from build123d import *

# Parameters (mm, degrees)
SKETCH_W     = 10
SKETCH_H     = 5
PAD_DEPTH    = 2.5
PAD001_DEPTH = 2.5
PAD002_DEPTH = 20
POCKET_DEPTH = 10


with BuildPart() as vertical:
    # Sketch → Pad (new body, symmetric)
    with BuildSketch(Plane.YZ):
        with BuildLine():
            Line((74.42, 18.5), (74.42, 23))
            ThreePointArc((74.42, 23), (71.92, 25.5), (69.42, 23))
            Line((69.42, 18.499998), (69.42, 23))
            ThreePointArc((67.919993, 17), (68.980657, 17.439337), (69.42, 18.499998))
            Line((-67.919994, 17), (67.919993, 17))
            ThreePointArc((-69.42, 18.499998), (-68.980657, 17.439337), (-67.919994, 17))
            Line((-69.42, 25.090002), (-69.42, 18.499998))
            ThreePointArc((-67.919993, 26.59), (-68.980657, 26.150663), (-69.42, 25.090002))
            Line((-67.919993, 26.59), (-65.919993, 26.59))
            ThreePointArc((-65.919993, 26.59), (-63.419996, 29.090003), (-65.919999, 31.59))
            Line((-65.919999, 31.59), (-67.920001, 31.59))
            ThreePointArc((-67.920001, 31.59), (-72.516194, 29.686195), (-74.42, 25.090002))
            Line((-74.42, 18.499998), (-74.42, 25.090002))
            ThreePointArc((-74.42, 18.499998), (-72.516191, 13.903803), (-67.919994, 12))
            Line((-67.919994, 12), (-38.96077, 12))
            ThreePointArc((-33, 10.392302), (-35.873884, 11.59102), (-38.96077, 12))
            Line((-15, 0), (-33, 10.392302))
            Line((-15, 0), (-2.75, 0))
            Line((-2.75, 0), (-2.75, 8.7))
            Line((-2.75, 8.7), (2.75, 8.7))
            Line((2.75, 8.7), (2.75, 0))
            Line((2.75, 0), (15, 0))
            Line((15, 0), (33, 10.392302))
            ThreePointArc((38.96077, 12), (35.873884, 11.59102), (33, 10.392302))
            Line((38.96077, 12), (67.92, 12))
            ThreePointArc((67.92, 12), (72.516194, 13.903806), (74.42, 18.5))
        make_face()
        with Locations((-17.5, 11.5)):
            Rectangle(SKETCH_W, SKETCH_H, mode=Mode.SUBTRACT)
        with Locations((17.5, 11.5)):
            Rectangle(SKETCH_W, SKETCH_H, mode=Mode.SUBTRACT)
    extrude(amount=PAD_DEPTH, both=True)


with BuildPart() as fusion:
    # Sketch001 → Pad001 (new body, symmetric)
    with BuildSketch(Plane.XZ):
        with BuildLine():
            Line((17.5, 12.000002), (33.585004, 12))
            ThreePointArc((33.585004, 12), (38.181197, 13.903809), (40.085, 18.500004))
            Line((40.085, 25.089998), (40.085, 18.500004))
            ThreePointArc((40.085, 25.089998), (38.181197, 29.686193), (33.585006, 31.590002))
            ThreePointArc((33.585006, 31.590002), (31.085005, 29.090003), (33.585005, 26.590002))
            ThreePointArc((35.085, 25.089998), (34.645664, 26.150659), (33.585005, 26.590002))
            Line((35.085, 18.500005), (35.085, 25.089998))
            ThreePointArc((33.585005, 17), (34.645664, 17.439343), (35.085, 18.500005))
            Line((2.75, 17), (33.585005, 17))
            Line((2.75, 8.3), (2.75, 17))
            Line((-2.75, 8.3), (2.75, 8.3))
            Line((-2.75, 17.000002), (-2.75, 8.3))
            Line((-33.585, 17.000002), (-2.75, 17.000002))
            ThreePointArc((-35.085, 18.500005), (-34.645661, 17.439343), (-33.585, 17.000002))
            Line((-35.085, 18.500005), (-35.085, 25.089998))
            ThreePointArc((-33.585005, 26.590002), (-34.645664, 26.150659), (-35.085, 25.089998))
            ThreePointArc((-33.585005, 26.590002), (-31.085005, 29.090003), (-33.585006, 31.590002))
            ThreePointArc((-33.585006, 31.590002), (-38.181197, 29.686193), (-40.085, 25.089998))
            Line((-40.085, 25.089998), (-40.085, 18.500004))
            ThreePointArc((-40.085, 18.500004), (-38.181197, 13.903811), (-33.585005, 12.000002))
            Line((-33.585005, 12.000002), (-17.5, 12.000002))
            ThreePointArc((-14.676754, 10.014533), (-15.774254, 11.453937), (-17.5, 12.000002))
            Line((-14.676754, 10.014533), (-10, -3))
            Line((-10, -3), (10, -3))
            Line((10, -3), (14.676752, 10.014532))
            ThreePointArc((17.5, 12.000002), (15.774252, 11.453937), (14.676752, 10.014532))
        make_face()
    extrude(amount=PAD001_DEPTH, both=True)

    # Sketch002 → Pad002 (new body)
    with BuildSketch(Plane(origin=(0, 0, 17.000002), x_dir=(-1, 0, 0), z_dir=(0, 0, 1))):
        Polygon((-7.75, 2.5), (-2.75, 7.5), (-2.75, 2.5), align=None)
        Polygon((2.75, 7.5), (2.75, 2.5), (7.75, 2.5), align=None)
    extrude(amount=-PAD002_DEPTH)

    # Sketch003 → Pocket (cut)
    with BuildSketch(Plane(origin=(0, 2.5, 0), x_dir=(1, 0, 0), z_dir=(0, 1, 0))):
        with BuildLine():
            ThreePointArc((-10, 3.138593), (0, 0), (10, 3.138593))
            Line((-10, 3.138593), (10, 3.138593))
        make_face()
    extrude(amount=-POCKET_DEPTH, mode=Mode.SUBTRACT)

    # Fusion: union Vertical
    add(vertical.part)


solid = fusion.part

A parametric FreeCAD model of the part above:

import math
import FreeCAD as App
import Part
import Sketcher

V = App.Vector
Q = App.Units.Quantity

doc = App.newDocument("Part")
body = doc.addObject("PartDesign::Body", "Body")

# Sketch on YZ plane
sketch1 = doc.addObject("Sketcher::SketchObject", "Sketch")
body.addObject(sketch1)
sketch1.AttachmentSupport = (doc.YZ_Plane, [""])
sketch1.MapMode = "FlatFace"
sketch1.addGeometry([
    Part.LineSegment(V(74.42, 18.5, 0), V(74.42, 23, 0)),  # 0
    Part.ArcOfCircle(Part.Circle(V(71.92, 23, 0), V(0, 0, 1), 2.5), math.radians(0), math.radians(180)),  # 1
    Part.LineSegment(V(69.42, 23, 0), V(69.42, 18.499998, 0)),  # 2
    Part.ArcOfCircle(Part.Circle(V(67.919999, 18.500001, 0), V(0, 0, 1), 1.500001), math.radians(-90.000245), math.radians(-0.000099)),  # 3
    Part.LineSegment(V(67.919993, 17, 0), V(-67.919994, 17, 0)),  # 4
    Part.ArcOfCircle(Part.Circle(V(-67.919999, 18.500001, 0), V(0, 0, 1), 1.500001), math.radians(-179.999901), math.radians(-89.999793)),  # 5
    Part.LineSegment(V(-69.42, 18.499998, 0), V(-69.42, 25.090002, 0)),  # 6
    Part.ArcOfCircle(Part.Circle(V(-67.919999, 25.089999, 0), V(0, 0, 1), 1.500001), math.radians(89.999755), math.radians(179.999901)),  # 7
    Part.LineSegment(V(-67.919993, 26.59, 0), V(-65.919993, 26.59, 0)),  # 8
    Part.ArcOfCircle(Part.Circle(V(-65.919996, 29.09, 0), V(0, 0, 1), 2.5), math.radians(-89.999931), math.radians(90.000069)),  # 9
    Part.LineSegment(V(-65.919999, 31.59, 0), V(-67.920001, 31.59, 0)),  # 10
    Part.ArcOfCircle(Part.Circle(V(-67.920001, 25.090001, 0), V(0, 0, 1), 6.499999), math.radians(89.999996), math.radians(179.999995)),  # 11
    Part.LineSegment(V(-74.42, 25.090002, 0), V(-74.42, 18.499998, 0)),  # 12
    Part.ArcOfCircle(Part.Circle(V(-67.92, 18.5, 0), V(0, 0, 1), 6.5), math.radians(-179.99998), math.radians(-89.999949)),  # 13
    Part.LineSegment(V(-67.919994, 12, 0), V(-38.96077, 12, 0)),  # 14
    Part.ArcOfCircle(Part.Circle(V(-38.960773, 0.145935, 0), V(0, 0, 1), 11.854065), math.radians(59.811506), math.radians(89.999984)),  # 15
    Part.LineSegment(V(-33, 10.392302, 0), V(-15, 0, 0)),  # 16
    Part.LineSegment(V(-15, 0, 0), V(-2.75, 0, 0)),  # 17
    Part.LineSegment(V(-2.75, 0, 0), V(-2.75, 8.7, 0)),  # 18
    Part.LineSegment(V(-2.75, 8.7, 0), V(2.75, 8.7, 0)),  # 19
    Part.LineSegment(V(2.75, 8.7, 0), V(2.75, 0, 0)),  # 20
    Part.LineSegment(V(2.75, 0, 0), V(15, 0, 0)),  # 21
    Part.LineSegment(V(15, 0, 0), V(33, 10.392302, 0)),  # 22
    Part.ArcOfCircle(Part.Circle(V(38.960773, 0.145935, 0), V(0, 0, 1), 11.854065), math.radians(90.000016), math.radians(120.188494)),  # 23
    Part.LineSegment(V(38.96077, 12, 0), V(67.92, 12, 0)),  # 24
    Part.ArcOfCircle(Part.Circle(V(67.92, 18.5, 0), V(0, 0, 1), 6.5), math.radians(-89.999998), math.radians(-0.000002)),  # 25
    Part.LineSegment(V(-12.5, 9, 0), V(-22.5, 9, 0)),  # 26
    Part.LineSegment(V(-22.5, 9, 0), V(-22.5, 14, 0)),  # 27
    Part.LineSegment(V(-22.5, 14, 0), V(-12.5, 14, 0)),  # 28
    Part.LineSegment(V(-12.5, 14, 0), V(-12.5, 9, 0)),  # 29
    Part.LineSegment(V(22.5, 9, 0), V(12.5, 9, 0)),  # 30
    Part.LineSegment(V(12.5, 9, 0), V(12.5, 14, 0)),  # 31
    Part.LineSegment(V(12.5, 14, 0), V(22.5, 14, 0)),  # 32
    Part.LineSegment(V(22.5, 14, 0), V(22.5, 9, 0)),  # 33
], False)
sketch1.addConstraint([
    Sketcher.Constraint("Tangent", 0, 2, 1, 1),
    Sketcher.Constraint("Tangent", 1, 2, 2, 1),
    Sketcher.Constraint("Tangent", 2, 2, 3, 2),
    Sketcher.Constraint("Coincident", 3, 1, 4, 1),
    Sketcher.Constraint("Coincident", 4, 2, 5, 2),
    Sketcher.Constraint("Tangent", 5, 1, 6, 1),
    Sketcher.Constraint("Tangent", 6, 2, 7, 2),
    Sketcher.Constraint("Coincident", 7, 1, 8, 1),
    Sketcher.Constraint("Tangent", 8, 2, 9, 1),
    Sketcher.Constraint("Tangent", 9, 2, 10, 1),
    Sketcher.Constraint("Tangent", 10, 2, 11, 1),
    Sketcher.Constraint("Tangent", 11, 2, 12, 1),
    Sketcher.Constraint("Tangent", 12, 2, 13, 1),
    Sketcher.Constraint("Tangent", 13, 2, 14, 1),
    Sketcher.Constraint("Tangent", 14, 2, 15, 2),
    Sketcher.Constraint("Coincident", 15, 1, 16, 1),
    Sketcher.Constraint("Coincident", 16, 2, 17, 1),
    Sketcher.Constraint("Coincident", 17, 2, 18, 1),
    Sketcher.Constraint("Coincident", 18, 2, 19, 1),
    Sketcher.Constraint("Coincident", 19, 2, 20, 1),
    Sketcher.Constraint("Coincident", 20, 2, 21, 1),
    Sketcher.Constraint("Coincident", 21, 2, 22, 1),
    Sketcher.Constraint("Coincident", 22, 2, 23, 2),
    Sketcher.Constraint("Tangent", 23, 1, 24, 1),
    Sketcher.Constraint("Tangent", 24, 2, 25, 1),
    Sketcher.Constraint("Tangent", 25, 2, 0, 1),
    Sketcher.Constraint("Coincident", 26, 2, 27, 1),
    Sketcher.Constraint("Coincident", 27, 2, 28, 1),
    Sketcher.Constraint("Coincident", 28, 2, 29, 1),
    Sketcher.Constraint("Coincident", 29, 2, 26, 1),
    Sketcher.Constraint("Coincident", 30, 2, 31, 1),
    Sketcher.Constraint("Coincident", 31, 2, 32, 1),
    Sketcher.Constraint("Coincident", 32, 2, 33, 1),
    Sketcher.Constraint("Coincident", 33, 2, 30, 1),
    Sketcher.Constraint("Vertical", 0),
    Sketcher.Constraint("Vertical", 2),
    Sketcher.Constraint("Horizontal", 4),
    Sketcher.Constraint("Vertical", 6),
    Sketcher.Constraint("Horizontal", 8),
    Sketcher.Constraint("Horizontal", 10),
    Sketcher.Constraint("Vertical", 12),
    Sketcher.Constraint("Horizontal", 14),
    Sketcher.Constraint("Horizontal", 17),
    Sketcher.Constraint("Vertical", 18),
    Sketcher.Constraint("Horizontal", 19),
    Sketcher.Constraint("Vertical", 20),
    Sketcher.Constraint("Horizontal", 21),
    Sketcher.Constraint("Horizontal", 24),
    Sketcher.Constraint("Horizontal", 26),
    Sketcher.Constraint("Vertical", 27),
    Sketcher.Constraint("Horizontal", 28),
    Sketcher.Constraint("Vertical", 29),
    Sketcher.Constraint("Horizontal", 30),
    Sketcher.Constraint("Vertical", 31),
    Sketcher.Constraint("Horizontal", 32),
    Sketcher.Constraint("Vertical", 33),
    Sketcher.Constraint("Coincident", 11, 3, 7, 3),
    Sketcher.Constraint("Coincident", 13, 3, 5, 3),
    Sketcher.Constraint("Coincident", 25, 3, 3, 3),
    Sketcher.Constraint("Equal", 3, 5),
    Sketcher.Constraint("Equal", 5, 7),
    Sketcher.Constraint("Equal", 1, 9),
    Sketcher.Constraint("Equal", 15, 23),
    Sketcher.Constraint("Symmetric", 17, 2, 20, 2, -1, 1),
    Sketcher.Constraint("Symmetric", 16, 2, 21, 2, -2),
    Sketcher.Constraint("Symmetric", 15, 1, 22, 2, -2),
    Sketcher.Constraint("Symmetric", 29, 2, 30, 2, -2),
    Sketcher.Constraint("Symmetric", 27, 2, 32, 2, -2),
    Sketcher.Constraint("Vertical", 4, 2, 7, 1),
    Sketcher.Constraint("Vertical", 7, 1, 13, 2),
    Sketcher.Constraint("Radius", 1, 2.5),
    Sketcher.Constraint("Radius", 3, 1.500001),
    Sketcher.Constraint("DistanceX", 8, 1, 8, 2, 2.0),
    Sketcher.Constraint("DistanceX", 26, 2, 26, 1, 10.0),
    Sketcher.Constraint("DistanceY", 27, 1, 27, 2, 5.0),
    Sketcher.Constraint("Angle", 16, Q("-29.999993 deg")),
    Sketcher.Constraint("DistanceX", 19, 1, 19, 2, 5.5),
    Sketcher.Constraint("DistanceY", 0, 1, 0, 2, 4.5),
    Sketcher.Constraint("DistanceY", 18, 1, 18, 2, 8.7),
    Sketcher.Constraint("DistanceY", -1, 1, 1, 3, 23.0),
    Sketcher.Constraint("DistanceX", 15, 1, -1, 1, 33.0),
    Sketcher.Constraint("DistanceX", 16, 2, -1, 1, 15.0),
    Sketcher.Constraint("DistanceY", -1, 1, 26, 2, 9.0),
    Sketcher.Constraint("DistanceX", 26, 2, -1, 1, 22.5),
    Sketcher.Constraint("DistanceX", -1, 1, 1, 3, 71.92),
    Sketcher.Constraint("DistanceX", 5, 3, -1, 1, 67.919999),
    Sketcher.Constraint("DistanceY", -1, 1, 7, 3, 25.089999),
    Sketcher.Constraint("Radius", 15, 11.854065),
    Sketcher.Constraint("DistanceX", 4, 2, 4, 1, 135.839987),
])
pad1 = doc.addObject("PartDesign::Pad", "Pad")
body.addObject(pad1)
pad1.Profile = sketch1
pad1.Length = 5
pad1.Midplane = True
body2 = doc.addObject("PartDesign::Body", "Body001")
body2.AllowCompound = True

# Sketch on XZ plane
sketch2 = doc.addObject("Sketcher::SketchObject", "Sketch001")
body2.addObject(sketch2)
sketch2.AttachmentSupport = (doc.getObject("XZ_Plane001"), [""])
sketch2.MapMode = "FlatFace"
sketch2.addGeometry([
    Part.LineSegment(V(17.5, 12.000002, 0), V(33.585004, 12, 0)),  # 0
    Part.ArcOfCircle(Part.Circle(V(33.585, 18.5, 0), V(0, 0, 1), 6.5), math.radians(-89.999962), math.radians(0.000033)),  # 1
    Part.LineSegment(V(40.085, 18.500004, 0), V(40.085, 25.089998, 0)),  # 2
    Part.ArcOfCircle(Part.Circle(V(33.585, 25.090002, 0), V(0, 0, 1), 6.5), math.radians(-0.000033), math.radians(89.999945)),  # 3
    Part.ArcOfCircle(Part.Circle(V(33.585005, 29.090002, 0), V(0, 0, 1), 2.5), math.radians(89.999977), math.radians(270)),  # 4
    Part.ArcOfCircle(Part.Circle(V(33.585001, 25.090003, 0), V(0, 0, 1), 1.499999), math.radians(-0.000196), math.radians(89.999852)),  # 5
    Part.LineSegment(V(35.085, 25.089998, 0), V(35.085, 18.500005, 0)),  # 6
    Part.ArcOfCircle(Part.Circle(V(33.585001, 18.499999, 0), V(0, 0, 1), 1.499999), math.radians(-89.999852), math.radians(0.000234)),  # 7
    Part.LineSegment(V(33.585005, 17, 0), V(2.75, 17, 0)),  # 8
    Part.LineSegment(V(2.75, 17, 0), V(2.75, 8.3, 0)),  # 9
    Part.LineSegment(V(2.75, 8.3, 0), V(-2.75, 8.3, 0)),  # 10
    Part.LineSegment(V(-2.75, 8.3, 0), V(-2.75, 17.000002, 0)),  # 11
    Part.LineSegment(V(-2.75, 17.000002, 0), V(-33.585, 17.000002, 0)),  # 12
    Part.ArcOfCircle(Part.Circle(V(-33.584999, 18.500003, 0), V(0, 0, 1), 1.500001), math.radians(179.999908), math.radians(269.999978)),  # 13
    Part.LineSegment(V(-35.085, 18.500005, 0), V(-35.085, 25.089998, 0)),  # 14
    Part.ArcOfCircle(Part.Circle(V(-33.585001, 25.090003, 0), V(0, 0, 1), 1.499999), math.radians(90.000148), math.radians(180.000196)),  # 15
    Part.ArcOfCircle(Part.Circle(V(-33.585005, 29.090002, 0), V(0, 0, 1), 2.5), math.radians(-90), math.radians(90.000023)),  # 16
    Part.ArcOfCircle(Part.Circle(V(-33.585, 25.090002, 0), V(0, 0, 1), 6.5), math.radians(90.000055), math.radians(180.000033)),  # 17
    Part.LineSegment(V(-40.085, 25.089998, 0), V(-40.085, 18.500004, 0)),  # 18
    Part.ArcOfCircle(Part.Circle(V(-33.585, 18.500002, 0), V(0, 0, 1), 6.5), math.radians(179.999985), math.radians(269.999954)),  # 19
    Part.LineSegment(V(-33.585005, 12.000002, 0), V(-17.5, 12.000002, 0)),  # 20
    Part.ArcOfCircle(Part.Circle(V(-17.500001, 9.000003, 0), V(0, 0, 1), 2.999999), math.radians(19.765829), math.radians(89.999987)),  # 21
    Part.LineSegment(V(-14.676754, 10.014533, 0), V(-10, -3, 0)),  # 22
    Part.LineSegment(V(-10, -3, 0), V(10, -3, 0)),  # 23
    Part.LineSegment(V(10, -3, 0), V(14.676752, 10.014532, 0)),  # 24
    Part.ArcOfCircle(Part.Circle(V(17.499998, 9.000004, 0), V(0, 0, 1), 2.999998), math.radians(89.999969), math.radians(160.234204)),  # 25
], False)
sketch2.addConstraint([
    Sketcher.Constraint("Tangent", 0, 2, 1, 1),
    Sketcher.Constraint("Tangent", 1, 2, 2, 1),
    Sketcher.Constraint("Tangent", 2, 2, 3, 1),
    Sketcher.Constraint("Tangent", 3, 2, 4, 1),
    Sketcher.Constraint("Coincident", 4, 2, 5, 2),
    Sketcher.Constraint("Coincident", 5, 1, 6, 1),
    Sketcher.Constraint("Coincident", 6, 2, 7, 2),
    Sketcher.Constraint("Coincident", 7, 1, 8, 1),
    Sketcher.Constraint("Coincident", 8, 2, 9, 1),
    Sketcher.Constraint("Coincident", 9, 2, 10, 1),
    Sketcher.Constraint("Coincident", 10, 2, 11, 1),
    Sketcher.Constraint("Coincident", 11, 2, 12, 1),
    Sketcher.Constraint("Tangent", 12, 2, 13, 2),
    Sketcher.Constraint("Tangent", 13, 1, 14, 1),
    Sketcher.Constraint("Coincident", 14, 2, 15, 2),
    Sketcher.Constraint("Coincident", 15, 1, 16, 1),
    Sketcher.Constraint("Tangent", 16, 2, 17, 1),
    Sketcher.Constraint("Tangent", 17, 2, 18, 1),
    Sketcher.Constraint("Tangent", 18, 2, 19, 1),
    Sketcher.Constraint("Tangent", 19, 2, 20, 1),
    Sketcher.Constraint("Tangent", 20, 2, 21, 2),
    Sketcher.Constraint("Tangent", 21, 1, 22, 1),
    Sketcher.Constraint("Coincident", 22, 2, 23, 1),
    Sketcher.Constraint("Coincident", 23, 2, 24, 1),
    Sketcher.Constraint("Tangent", 24, 2, 25, 2),
    Sketcher.Constraint("Tangent", 25, 1, 0, 1),
    Sketcher.Constraint("Vertical", 2),
    Sketcher.Constraint("Vertical", 6),
    Sketcher.Constraint("Horizontal", 8),
    Sketcher.Constraint("Vertical", 9),
    Sketcher.Constraint("Horizontal", 10),
    Sketcher.Constraint("Vertical", 11),
    Sketcher.Constraint("Horizontal", 12),
    Sketcher.Constraint("Vertical", 14),
    Sketcher.Constraint("Vertical", 18),
    Sketcher.Constraint("Horizontal", 20),
    Sketcher.Constraint("Horizontal", 23),
    Sketcher.Constraint("Coincident", 5, 3, 3, 3),
    Sketcher.Constraint("Coincident", 7, 3, 1, 3),
    Sketcher.Constraint("Coincident", 17, 3, 15, 3),
    Sketcher.Constraint("Coincident", 19, 3, 13, 3),
    Sketcher.Constraint("Equal", 1, 3),
    Sketcher.Constraint("Equal", 7, 13),
    Sketcher.Constraint("Equal", 13, 15),
    Sketcher.Constraint("Equal", 4, 16),
    Sketcher.Constraint("Equal", 21, 25),
    Sketcher.Constraint("Symmetric", 1, 3, 13, 3, -2),
    Sketcher.Constraint("Symmetric", 4, 3, 16, 3, -2),
    Sketcher.Constraint("Symmetric", 21, 3, 25, 3, -2),
    Sketcher.Constraint("Horizontal", 2, 2, 5, 1),
    Sketcher.Constraint("Horizontal", 1, 2, 6, 2),
    Sketcher.Constraint("Horizontal", 5, 1, 14, 2),
    Sketcher.Constraint("Horizontal", 21, 1, 24, 2),
    Sketcher.Constraint("Vertical", 4, 3, 0, 2),
    Sketcher.Constraint("Vertical", 3, 2, 4, 2),
    Sketcher.Constraint("Vertical", 4, 2, 7, 1),
    Sketcher.Constraint("Vertical", 16, 3, 15, 1),
    Sketcher.Constraint("Radius", 21, 2.999999),
    Sketcher.Constraint("Radius", 1, 6.5),
    Sketcher.Constraint("Radius", 4, 2.5),
    Sketcher.Constraint("DistanceX", 23, 1, 23, 2, 20.0),
    Sketcher.Constraint("DistanceX", 10, 2, 10, 1, 5.5),
    Sketcher.Constraint("DistanceY", 9, 2, 9, 1, 8.7),
    Sketcher.Constraint("DistanceY", -1, 1, 0, 2, 12.0),
    Sketcher.Constraint("DistanceY", 22, 2, -1, 1, 3.0),
    Sketcher.Constraint("DistanceX", 21, 3, -1, 1, 17.500001),
    Sketcher.Constraint("DistanceX", 12, 2, 12, 1, 30.835),
    Sketcher.Constraint("DistanceY", -1, 1, 3, 3, 25.090002),
    Sketcher.Constraint("DistanceX", -1, 1, 8, 2, 2.75),
])
pad2 = doc.addObject("PartDesign::Pad", "Pad001")
body2.addObject(pad2)
pad2.Profile = sketch2
pad2.Length = 5
pad2.Midplane = True

# Sketch on XY plane
sketch3 = doc.addObject("Sketcher::SketchObject", "Sketch002")
body2.addObject(sketch3)
sketch3.AttachmentSupport = (doc.getObject("XY_Plane001"), [""])
sketch3.MapMode = "FlatFace"
sketch3.AttachmentOffset = App.Placement(V(0, 0, 17.000002), App.Rotation())
sketch3.addGeometry([
    Part.LineSegment(V(2.75, -7.5, 0), V(7.75, -2.5, 0)),  # 0
    Part.LineSegment(V(7.75, -2.5, 0), V(2.75, -2.5, 0)),  # 1
    Part.LineSegment(V(2.75, -2.5, 0), V(2.75, -7.5, 0)),  # 2
    Part.LineSegment(V(-2.75, -7.5, 0), V(-2.75, -2.5, 0)),  # 3
    Part.LineSegment(V(-2.75, -2.5, 0), V(-7.75, -2.5, 0)),  # 4
    Part.LineSegment(V(-7.75, -2.5, 0), V(-2.75, -7.5, 0)),  # 5
], False)
sketch3.addConstraint([
    Sketcher.Constraint("Coincident", 0, 2, 1, 1),
    Sketcher.Constraint("Coincident", 1, 2, 2, 1),
    Sketcher.Constraint("Coincident", 2, 2, 0, 1),
    Sketcher.Constraint("Coincident", 3, 2, 4, 1),
    Sketcher.Constraint("Coincident", 4, 2, 5, 1),
    Sketcher.Constraint("Coincident", 5, 2, 3, 1),
    Sketcher.Constraint("Horizontal", 1),
    Sketcher.Constraint("Vertical", 2),
    Sketcher.Constraint("Vertical", 3),
    Sketcher.Constraint("Horizontal", 4),
    Sketcher.Constraint("Symmetric", 1, 2, 3, 2, -2),
    Sketcher.Constraint("Perpendicular", 0, 5),
    Sketcher.Constraint("Horizontal", 2, 2, 5, 2),
    Sketcher.Constraint("Equal", 1, 4),
    Sketcher.Constraint("DistanceX", 1, 2, 1, 1, 5.0),
    Sketcher.Constraint("DistanceY", 0, 2, -1, 1, 2.5),
    Sketcher.Constraint("DistanceX", 3, 2, 1, 2, 5.5),
])
pad3 = doc.addObject("PartDesign::Pad", "Pad002")
body2.addObject(pad3)
pad3.Profile = sketch3
pad3.Length = 20
pad3.Reversed = True

# Sketch on XZ plane
sketch4 = doc.addObject("Sketcher::SketchObject", "Sketch003")
body2.addObject(sketch4)
sketch4.AttachmentSupport = (doc.getObject("XZ_Plane001"), [""])
sketch4.MapMode = "FlatFace"
sketch4.AttachmentOffset = App.Placement(V(0, 0, -2.5), App.Rotation())
sketch4.addGeometry([
    Part.ArcOfCircle(Part.Circle(V(0, -17.500002, 0), V(0, 0, 1), 17.500002), math.radians(55.150099), math.radians(124.849901)),
    Part.LineSegment(V(10, -3.138593, 0), V(-10, -3.138593, 0)),
], False)
sketch4.addConstraint([
    Sketcher.Constraint("Coincident", 0, 1, 1, 1),
    Sketcher.Constraint("Coincident", 1, 2, 0, 2),
    Sketcher.Constraint("Horizontal", 1),
    Sketcher.Constraint("PointOnObject", 0, 3, -2),
    Sketcher.Constraint("Radius", 0, 17.500002),
    Sketcher.Constraint("DistanceX", 1, 2, 1, 1, 20.0),
    Sketcher.Constraint("DistanceY", 0, 3, -1, 1, 17.500002),
])
pocket1 = doc.addObject("PartDesign::Pocket", "Pocket")
body2.addObject(pocket1)
pocket1.Profile = sketch4
pocket1.Length = 10
pocket1.Reversed = True
doc.recompute()

boolean = doc.addObject("PartDesign::Boolean", "Boolean")
body2.addObject(boolean)
boolean.Type = "Fuse"
boolean.addObjects([body])

doc.recompute()
